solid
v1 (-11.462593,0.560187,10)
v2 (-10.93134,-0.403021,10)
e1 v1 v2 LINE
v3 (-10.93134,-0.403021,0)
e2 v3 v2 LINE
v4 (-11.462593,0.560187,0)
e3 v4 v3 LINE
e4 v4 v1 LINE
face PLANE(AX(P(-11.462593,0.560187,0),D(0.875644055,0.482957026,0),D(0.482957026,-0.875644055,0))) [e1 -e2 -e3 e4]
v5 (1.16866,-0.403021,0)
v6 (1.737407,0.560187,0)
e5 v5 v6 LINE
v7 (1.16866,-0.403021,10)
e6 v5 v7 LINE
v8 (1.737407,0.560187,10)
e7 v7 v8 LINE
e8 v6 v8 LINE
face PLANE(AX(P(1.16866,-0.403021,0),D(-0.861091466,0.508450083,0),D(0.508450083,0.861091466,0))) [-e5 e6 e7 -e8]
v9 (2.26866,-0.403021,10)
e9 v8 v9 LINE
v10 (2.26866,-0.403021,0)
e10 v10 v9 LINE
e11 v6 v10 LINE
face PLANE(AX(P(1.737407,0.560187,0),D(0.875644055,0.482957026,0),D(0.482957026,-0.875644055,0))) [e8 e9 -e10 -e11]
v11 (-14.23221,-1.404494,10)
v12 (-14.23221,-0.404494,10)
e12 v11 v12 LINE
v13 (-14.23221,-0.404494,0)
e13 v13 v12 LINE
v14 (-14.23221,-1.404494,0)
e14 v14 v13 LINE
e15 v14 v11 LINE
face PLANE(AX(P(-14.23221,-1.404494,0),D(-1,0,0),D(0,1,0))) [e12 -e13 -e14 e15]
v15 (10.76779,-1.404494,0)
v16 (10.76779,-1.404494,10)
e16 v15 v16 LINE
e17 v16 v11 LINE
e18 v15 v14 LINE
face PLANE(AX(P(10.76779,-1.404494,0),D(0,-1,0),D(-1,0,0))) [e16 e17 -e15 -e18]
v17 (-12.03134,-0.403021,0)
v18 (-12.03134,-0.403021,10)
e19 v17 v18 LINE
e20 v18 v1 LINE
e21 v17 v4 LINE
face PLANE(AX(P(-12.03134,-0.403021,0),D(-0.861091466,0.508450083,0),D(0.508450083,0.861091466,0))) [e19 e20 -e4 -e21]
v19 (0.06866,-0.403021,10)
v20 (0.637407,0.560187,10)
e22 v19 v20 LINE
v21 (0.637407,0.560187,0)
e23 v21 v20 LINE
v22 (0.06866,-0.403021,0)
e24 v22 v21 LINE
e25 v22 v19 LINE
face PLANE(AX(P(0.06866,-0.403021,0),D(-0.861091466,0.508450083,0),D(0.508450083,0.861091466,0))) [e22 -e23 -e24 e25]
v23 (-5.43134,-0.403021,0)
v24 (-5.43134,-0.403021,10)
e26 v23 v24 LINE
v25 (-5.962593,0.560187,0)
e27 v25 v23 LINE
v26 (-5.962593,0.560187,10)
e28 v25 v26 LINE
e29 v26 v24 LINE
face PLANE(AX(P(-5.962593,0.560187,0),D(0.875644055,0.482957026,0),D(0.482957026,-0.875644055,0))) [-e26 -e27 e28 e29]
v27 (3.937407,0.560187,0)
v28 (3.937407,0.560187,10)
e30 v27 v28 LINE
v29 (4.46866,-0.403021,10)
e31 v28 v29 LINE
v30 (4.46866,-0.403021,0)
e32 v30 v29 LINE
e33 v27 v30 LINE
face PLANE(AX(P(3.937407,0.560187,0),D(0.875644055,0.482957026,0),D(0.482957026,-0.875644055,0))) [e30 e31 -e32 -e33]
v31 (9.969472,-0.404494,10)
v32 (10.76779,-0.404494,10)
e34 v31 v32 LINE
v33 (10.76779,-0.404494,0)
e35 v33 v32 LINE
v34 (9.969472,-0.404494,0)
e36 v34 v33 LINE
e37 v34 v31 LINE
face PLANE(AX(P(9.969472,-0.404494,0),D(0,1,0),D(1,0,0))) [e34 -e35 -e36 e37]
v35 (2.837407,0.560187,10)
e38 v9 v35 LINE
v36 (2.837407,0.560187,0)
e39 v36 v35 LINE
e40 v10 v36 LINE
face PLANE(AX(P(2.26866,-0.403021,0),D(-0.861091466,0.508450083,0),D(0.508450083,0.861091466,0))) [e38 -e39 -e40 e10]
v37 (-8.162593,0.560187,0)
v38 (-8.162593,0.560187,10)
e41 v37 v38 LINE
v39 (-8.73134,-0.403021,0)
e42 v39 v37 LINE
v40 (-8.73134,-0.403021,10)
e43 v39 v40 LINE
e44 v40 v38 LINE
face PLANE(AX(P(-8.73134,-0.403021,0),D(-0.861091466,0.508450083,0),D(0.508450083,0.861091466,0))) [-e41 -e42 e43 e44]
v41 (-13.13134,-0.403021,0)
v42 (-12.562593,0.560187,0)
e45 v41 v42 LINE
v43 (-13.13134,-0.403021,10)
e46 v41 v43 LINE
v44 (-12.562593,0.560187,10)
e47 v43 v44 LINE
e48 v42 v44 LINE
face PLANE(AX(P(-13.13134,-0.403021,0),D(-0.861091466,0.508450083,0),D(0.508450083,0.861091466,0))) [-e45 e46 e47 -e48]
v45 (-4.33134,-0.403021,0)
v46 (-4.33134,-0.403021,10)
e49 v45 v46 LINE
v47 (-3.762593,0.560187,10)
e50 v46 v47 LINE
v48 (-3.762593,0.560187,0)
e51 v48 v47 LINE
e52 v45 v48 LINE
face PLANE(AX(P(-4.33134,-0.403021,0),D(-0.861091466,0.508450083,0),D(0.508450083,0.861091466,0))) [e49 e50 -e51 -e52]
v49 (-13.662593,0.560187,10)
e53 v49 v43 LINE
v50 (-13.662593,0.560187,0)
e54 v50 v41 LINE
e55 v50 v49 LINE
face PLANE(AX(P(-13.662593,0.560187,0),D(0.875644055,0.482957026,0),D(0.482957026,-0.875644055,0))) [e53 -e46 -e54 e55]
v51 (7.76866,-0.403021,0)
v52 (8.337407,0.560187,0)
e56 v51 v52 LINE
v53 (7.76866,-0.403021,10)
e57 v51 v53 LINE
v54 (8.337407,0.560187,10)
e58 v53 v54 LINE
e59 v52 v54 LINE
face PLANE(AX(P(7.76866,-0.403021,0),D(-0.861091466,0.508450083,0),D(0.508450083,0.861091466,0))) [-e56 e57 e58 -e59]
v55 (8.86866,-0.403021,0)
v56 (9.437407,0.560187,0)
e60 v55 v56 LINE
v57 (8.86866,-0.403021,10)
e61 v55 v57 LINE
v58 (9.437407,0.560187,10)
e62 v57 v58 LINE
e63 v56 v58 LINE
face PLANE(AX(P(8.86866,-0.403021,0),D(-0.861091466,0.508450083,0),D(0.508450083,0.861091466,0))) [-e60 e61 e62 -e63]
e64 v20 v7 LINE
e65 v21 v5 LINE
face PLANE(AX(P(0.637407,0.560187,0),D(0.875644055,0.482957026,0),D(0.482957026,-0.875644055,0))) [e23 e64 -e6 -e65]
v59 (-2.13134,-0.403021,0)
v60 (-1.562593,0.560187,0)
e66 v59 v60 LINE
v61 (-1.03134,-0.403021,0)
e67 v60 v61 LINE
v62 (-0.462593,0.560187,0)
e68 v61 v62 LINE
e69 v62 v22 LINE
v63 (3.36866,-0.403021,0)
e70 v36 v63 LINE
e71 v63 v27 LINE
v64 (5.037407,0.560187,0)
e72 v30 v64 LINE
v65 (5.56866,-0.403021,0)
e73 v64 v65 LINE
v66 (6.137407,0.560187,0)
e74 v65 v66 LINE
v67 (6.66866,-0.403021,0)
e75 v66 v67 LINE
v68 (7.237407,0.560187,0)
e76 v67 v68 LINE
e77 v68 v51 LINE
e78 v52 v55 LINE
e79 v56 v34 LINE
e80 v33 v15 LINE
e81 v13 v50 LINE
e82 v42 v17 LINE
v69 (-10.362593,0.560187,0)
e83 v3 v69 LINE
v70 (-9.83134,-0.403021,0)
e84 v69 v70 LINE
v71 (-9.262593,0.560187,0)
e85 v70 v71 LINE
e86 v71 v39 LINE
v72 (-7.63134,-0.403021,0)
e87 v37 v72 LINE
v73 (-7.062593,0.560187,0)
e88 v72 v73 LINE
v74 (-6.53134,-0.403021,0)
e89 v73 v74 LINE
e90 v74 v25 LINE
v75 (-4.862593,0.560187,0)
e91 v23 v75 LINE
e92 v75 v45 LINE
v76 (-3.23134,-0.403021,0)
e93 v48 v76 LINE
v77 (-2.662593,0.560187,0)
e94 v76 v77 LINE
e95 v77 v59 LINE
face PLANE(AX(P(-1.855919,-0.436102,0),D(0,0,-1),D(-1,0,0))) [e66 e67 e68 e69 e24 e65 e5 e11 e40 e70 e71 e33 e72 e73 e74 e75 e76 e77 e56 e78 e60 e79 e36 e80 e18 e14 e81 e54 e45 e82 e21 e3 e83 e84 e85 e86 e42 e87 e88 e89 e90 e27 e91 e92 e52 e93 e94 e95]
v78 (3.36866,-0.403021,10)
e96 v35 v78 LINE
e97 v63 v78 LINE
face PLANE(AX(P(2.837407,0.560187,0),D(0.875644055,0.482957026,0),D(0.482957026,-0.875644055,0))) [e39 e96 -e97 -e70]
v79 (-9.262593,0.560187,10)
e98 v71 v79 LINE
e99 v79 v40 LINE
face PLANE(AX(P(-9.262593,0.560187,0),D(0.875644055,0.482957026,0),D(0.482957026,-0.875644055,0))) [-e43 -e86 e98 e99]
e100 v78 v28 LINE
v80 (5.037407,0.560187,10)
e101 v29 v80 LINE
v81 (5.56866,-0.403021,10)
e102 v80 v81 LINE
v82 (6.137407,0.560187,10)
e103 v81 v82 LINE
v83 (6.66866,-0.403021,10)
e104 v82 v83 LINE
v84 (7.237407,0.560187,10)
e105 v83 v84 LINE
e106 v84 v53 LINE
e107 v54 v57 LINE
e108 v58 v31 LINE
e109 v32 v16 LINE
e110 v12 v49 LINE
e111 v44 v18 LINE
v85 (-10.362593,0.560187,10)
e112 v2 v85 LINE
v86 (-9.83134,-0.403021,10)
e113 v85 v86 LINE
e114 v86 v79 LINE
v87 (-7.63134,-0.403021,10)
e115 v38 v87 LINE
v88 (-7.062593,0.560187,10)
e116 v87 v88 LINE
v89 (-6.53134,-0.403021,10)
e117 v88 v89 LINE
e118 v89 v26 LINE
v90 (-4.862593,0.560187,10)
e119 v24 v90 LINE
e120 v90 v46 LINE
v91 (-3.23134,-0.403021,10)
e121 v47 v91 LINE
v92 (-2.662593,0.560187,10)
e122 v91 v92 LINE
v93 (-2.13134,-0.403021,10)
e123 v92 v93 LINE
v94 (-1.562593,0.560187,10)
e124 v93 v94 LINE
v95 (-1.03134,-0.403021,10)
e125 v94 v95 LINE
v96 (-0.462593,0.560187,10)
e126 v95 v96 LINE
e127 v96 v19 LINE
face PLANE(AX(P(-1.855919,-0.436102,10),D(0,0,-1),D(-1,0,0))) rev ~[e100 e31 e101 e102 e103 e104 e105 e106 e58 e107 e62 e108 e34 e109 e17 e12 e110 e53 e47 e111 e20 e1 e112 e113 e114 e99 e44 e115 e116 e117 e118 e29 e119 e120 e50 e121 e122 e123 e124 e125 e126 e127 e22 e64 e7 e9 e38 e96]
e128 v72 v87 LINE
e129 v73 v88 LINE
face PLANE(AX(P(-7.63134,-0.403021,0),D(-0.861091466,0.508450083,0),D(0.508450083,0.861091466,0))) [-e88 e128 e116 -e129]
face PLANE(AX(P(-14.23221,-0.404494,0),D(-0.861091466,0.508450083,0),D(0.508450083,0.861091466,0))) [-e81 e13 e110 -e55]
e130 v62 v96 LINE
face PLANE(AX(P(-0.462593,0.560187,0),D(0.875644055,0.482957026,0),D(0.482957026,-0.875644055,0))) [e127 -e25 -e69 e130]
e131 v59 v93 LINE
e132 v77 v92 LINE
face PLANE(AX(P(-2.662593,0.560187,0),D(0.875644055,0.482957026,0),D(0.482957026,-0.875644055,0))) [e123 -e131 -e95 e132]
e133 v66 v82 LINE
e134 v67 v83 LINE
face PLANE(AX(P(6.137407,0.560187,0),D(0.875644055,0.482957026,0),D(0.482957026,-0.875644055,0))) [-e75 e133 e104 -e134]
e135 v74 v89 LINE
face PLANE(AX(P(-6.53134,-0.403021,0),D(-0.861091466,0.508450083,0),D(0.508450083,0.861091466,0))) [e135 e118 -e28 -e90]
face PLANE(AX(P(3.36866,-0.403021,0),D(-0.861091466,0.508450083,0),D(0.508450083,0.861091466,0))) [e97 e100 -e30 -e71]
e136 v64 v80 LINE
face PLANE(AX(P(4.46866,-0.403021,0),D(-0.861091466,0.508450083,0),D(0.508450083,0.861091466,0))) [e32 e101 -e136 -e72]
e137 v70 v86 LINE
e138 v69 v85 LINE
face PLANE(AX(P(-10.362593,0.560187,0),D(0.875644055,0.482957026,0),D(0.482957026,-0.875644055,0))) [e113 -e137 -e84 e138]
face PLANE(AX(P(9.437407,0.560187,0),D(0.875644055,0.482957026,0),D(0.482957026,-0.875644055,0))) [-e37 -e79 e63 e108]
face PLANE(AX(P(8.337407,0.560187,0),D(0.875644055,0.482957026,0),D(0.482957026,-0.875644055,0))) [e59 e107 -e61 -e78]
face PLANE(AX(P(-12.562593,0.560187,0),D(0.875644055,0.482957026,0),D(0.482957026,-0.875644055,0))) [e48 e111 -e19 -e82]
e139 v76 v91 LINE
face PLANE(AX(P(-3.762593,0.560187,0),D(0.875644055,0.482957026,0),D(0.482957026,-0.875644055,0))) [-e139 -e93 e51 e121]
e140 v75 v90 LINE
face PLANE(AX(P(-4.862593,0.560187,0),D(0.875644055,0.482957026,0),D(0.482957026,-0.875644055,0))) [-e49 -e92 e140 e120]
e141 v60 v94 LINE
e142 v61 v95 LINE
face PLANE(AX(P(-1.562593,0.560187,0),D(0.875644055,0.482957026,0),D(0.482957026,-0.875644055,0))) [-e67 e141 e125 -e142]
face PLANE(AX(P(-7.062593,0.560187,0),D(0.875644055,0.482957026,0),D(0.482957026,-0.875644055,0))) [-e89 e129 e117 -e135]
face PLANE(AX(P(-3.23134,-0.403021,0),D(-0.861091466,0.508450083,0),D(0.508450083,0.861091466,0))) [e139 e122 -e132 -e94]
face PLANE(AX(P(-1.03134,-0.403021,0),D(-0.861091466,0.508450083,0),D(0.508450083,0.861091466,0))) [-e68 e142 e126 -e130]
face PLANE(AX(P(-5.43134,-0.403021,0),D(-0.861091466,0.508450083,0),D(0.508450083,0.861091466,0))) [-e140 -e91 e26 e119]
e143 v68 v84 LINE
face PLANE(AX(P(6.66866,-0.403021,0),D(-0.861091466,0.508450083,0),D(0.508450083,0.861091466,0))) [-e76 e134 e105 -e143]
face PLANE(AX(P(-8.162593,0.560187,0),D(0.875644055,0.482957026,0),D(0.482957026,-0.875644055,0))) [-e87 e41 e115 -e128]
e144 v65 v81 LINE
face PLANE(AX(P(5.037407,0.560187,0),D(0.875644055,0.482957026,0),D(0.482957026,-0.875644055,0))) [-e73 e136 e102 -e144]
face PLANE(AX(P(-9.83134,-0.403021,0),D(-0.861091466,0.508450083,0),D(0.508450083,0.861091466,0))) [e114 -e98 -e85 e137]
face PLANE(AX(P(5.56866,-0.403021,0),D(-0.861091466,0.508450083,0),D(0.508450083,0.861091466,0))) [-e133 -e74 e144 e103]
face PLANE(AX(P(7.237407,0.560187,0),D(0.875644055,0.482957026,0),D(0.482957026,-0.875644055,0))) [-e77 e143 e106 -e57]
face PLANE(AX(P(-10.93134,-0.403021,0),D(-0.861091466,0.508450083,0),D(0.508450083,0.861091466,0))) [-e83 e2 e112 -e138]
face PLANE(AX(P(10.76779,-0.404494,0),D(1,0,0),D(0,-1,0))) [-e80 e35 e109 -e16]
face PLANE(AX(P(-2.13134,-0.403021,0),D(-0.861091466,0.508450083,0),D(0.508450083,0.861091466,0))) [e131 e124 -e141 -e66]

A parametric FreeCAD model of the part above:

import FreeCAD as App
import Part
import Sketcher

V = App.Vector

doc = App.newDocument("Part")
body = doc.addObject("PartDesign::Body", "Body")

# Sketch on XY plane
sketch1 = doc.addObject("Sketcher::SketchObject", "Sketch")
body.addObject(sketch1)
sketch1.AttachmentSupport = (doc.XY_Plane, [""])
sketch1.MapMode = "FlatFace"
sketch1.addGeometry([
    Part.LineSegment(V(-13.662593, 0.560187, 0), V(-14.23221, -0.404494, 0)),  # 0
    Part.LineSegment(V(-14.23221, -0.404494, 0), V(-14.23221, -1.404494, 0)),  # 1
    Part.LineSegment(V(-14.23221, -1.404494, 0), V(10.76779, -1.404494, 0)),  # 2
    Part.LineSegment(V(10.76779, -1.404494, 0), V(10.76779, -0.404494, 0)),  # 3
    Part.LineSegment(V(10.76779, -0.404494, 0), V(9.969472, -0.404494, 0)),  # 4
    Part.LineSegment(V(9.969472, -0.404494, 0), V(9.437407, 0.560187, 0)),  # 5
    Part.LineSegment(V(9.437407, 0.560187, 0), V(8.86866, -0.403021, 0)),  # 6
    Part.LineSegment(V(8.86866, -0.403021, 0), V(8.337407, 0.560187, 0)),  # 7
    Part.LineSegment(V(8.337407, 0.560187, 0), V(7.76866, -0.403021, 0)),  # 8
    Part.LineSegment(V(7.76866, -0.403021, 0), V(7.237407, 0.560187, 0)),  # 9
    Part.LineSegment(V(7.237407, 0.560187, 0), V(6.66866, -0.403021, 0)),  # 10
    Part.LineSegment(V(6.66866, -0.403021, 0), V(6.137407, 0.560187, 0)),  # 11
    Part.LineSegment(V(6.137407, 0.560187, 0), V(5.56866, -0.403021, 0)),  # 12
    Part.LineSegment(V(5.56866, -0.403021, 0), V(5.037407, 0.560187, 0)),  # 13
    Part.LineSegment(V(5.037407, 0.560187, 0), V(4.46866, -0.403021, 0)),  # 14
    Part.LineSegment(V(4.46866, -0.403021, 0), V(3.937407, 0.560187, 0)),  # 15
    Part.LineSegment(V(3.937407, 0.560187, 0), V(3.36866, -0.403021, 0)),  # 16
    Part.LineSegment(V(3.36866, -0.403021, 0), V(2.837407, 0.560187, 0)),  # 17
    Part.LineSegment(V(2.837407, 0.560187, 0), V(2.26866, -0.403021, 0)),  # 18
    Part.LineSegment(V(2.26866, -0.403021, 0), V(1.737407, 0.560187, 0)),  # 19
    Part.LineSegment(V(1.737407, 0.560187, 0), V(1.16866, -0.403021, 0)),  # 20
    Part.LineSegment(V(1.16866, -0.403021, 0), V(0.637407, 0.560187, 0)),  # 21
    Part.LineSegment(V(0.637407, 0.560187, 0), V(0.06866, -0.403021, 0)),  # 22
    Part.LineSegment(V(0.06866, -0.403021, 0), V(-0.462593, 0.560187, 0)),  # 23
    Part.LineSegment(V(-0.462593, 0.560187, 0), V(-1.03134, -0.403021, 0)),  # 24
    Part.LineSegment(V(-1.03134, -0.403021, 0), V(-1.562593, 0.560187, 0)),  # 25
    Part.LineSegment(V(-1.562593, 0.560187, 0), V(-2.13134, -0.403021, 0)),  # 26
    Part.LineSegment(V(-2.13134, -0.403021, 0), V(-2.662593, 0.560187, 0)),  # 27
    Part.LineSegment(V(-2.662593, 0.560187, 0), V(-3.23134, -0.403021, 0)),  # 28
    Part.LineSegment(V(-3.23134, -0.403021, 0), V(-3.762593, 0.560187, 0)),  # 29
    Part.LineSegment(V(-3.762593, 0.560187, 0), V(-4.33134, -0.403021, 0)),  # 30
    Part.LineSegment(V(-4.33134, -0.403021, 0), V(-4.862593, 0.560187, 0)),  # 31
    Part.LineSegment(V(-4.862593, 0.560187, 0), V(-5.43134, -0.403021, 0)),  # 32
    Part.LineSegment(V(-5.43134, -0.403021, 0), V(-5.962593, 0.560187, 0)),  # 33
    Part.LineSegment(V(-5.962593, 0.560187, 0), V(-6.53134, -0.403021, 0)),  # 34
    Part.LineSegment(V(-6.53134, -0.403021, 0), V(-7.062593, 0.560187, 0)),  # 35
    Part.LineSegment(V(-7.062593, 0.560187, 0), V(-7.63134, -0.403021, 0)),  # 36
    Part.LineSegment(V(-7.63134, -0.403021, 0), V(-8.162593, 0.560187, 0)),  # 37
    Part.LineSegment(V(-8.162593, 0.560187, 0), V(-8.73134, -0.403021, 0)),  # 38
    Part.LineSegment(V(-8.73134, -0.403021, 0), V(-9.262593, 0.560187, 0)),  # 39
    Part.LineSegment(V(-9.262593, 0.560187, 0), V(-9.83134, -0.403021, 0)),  # 40
    Part.LineSegment(V(-9.83134, -0.403021, 0), V(-10.362593, 0.560187, 0)),  # 41
    Part.LineSegment(V(-10.362593, 0.560187, 0), V(-10.93134, -0.403021, 0)),  # 42
    Part.LineSegment(V(-10.93134, -0.403021, 0), V(-11.462593, 0.560187, 0)),  # 43
    Part.LineSegment(V(-11.462593, 0.560187, 0), V(-12.03134, -0.403021, 0)),  # 44
    Part.LineSegment(V(-12.03134, -0.403021, 0), V(-12.562593, 0.560187, 0)),  # 45
    Part.LineSegment(V(-12.562593, 0.560187, 0), V(-13.13134, -0.403021, 0)),  # 46
    Part.LineSegment(V(-13.13134, -0.403021, 0), V(-13.662593, 0.560187, 0)),  # 47
], False)
sketch1.addConstraint([
    Sketcher.Constraint("Coincident", 0, 2, 1, 1),
    Sketcher.Constraint("Coincident", 1, 2, 2, 1),
    Sketcher.Constraint("Coincident", 2, 2, 3, 1),
    Sketcher.Constraint("Coincident", 3, 2, 4, 1),
    Sketcher.Constraint("Coincident", 4, 2, 5, 1),
    Sketcher.Constraint("Coincident", 5, 2, 6, 1),
    Sketcher.Constraint("Coincident", 6, 2, 7, 1),
    Sketcher.Constraint("Coincident", 7, 2, 8, 1),
    Sketcher.Constraint("Coincident", 8, 2, 9, 1),
    Sketcher.Constraint("Coincident", 9, 2, 10, 1),
    Sketcher.Constraint("Coincident", 10, 2, 11, 1),
    Sketcher.Constraint("Coincident", 11, 2, 12, 1),
    Sketcher.Constraint("Coincident", 12, 2, 13, 1),
    Sketcher.Constraint("Coincident", 13, 2, 14, 1),
    Sketcher.Constraint("Coincident", 14, 2, 15, 1),
    Sketcher.Constraint("Coincident", 15, 2, 16, 1),
    Sketcher.Constraint("Coincident", 16, 2, 17, 1),
    Sketcher.Constraint("Coincident", 17, 2, 18, 1),
    Sketcher.Constraint("Coincident", 18, 2, 19, 1),
    Sketcher.Constraint("Coincident", 19, 2, 20, 1),
    Sketcher.Constraint("Coincident", 20, 2, 21, 1),
    Sketcher.Constraint("Coincident", 21, 2, 22, 1),
    Sketcher.Constraint("Coincident", 22, 2, 23, 1),
    Sketcher.Constraint("Coincident", 23, 2, 24, 1),
    Sketcher.Constraint("Coincident", 24, 2, 25, 1),
    Sketcher.Constraint("Coincident", 25, 2, 26, 1),
    Sketcher.Constraint("Coincident", 26, 2, 27, 1),
    Sketcher.Constraint("Coincident", 27, 2, 28, 1),
    Sketcher.Constraint("Coincident", 28, 2, 29, 1),
    Sketcher.Constraint("Coincident", 29, 2, 30, 1),
    Sketcher.Constraint("Coincident", 30, 2, 31, 1),
    Sketcher.Constraint("Coincident", 31, 2, 32, 1),
    Sketcher.Constraint("Coincident", 32, 2, 33, 1),
    Sketcher.Constraint("Coincident", 33, 2, 34, 1),
    Sketcher.Constraint("Coincident", 34, 2, 35, 1),
    Sketcher.Constraint("Coincident", 35, 2, 36, 1),
    Sketcher.Constraint("Coincident", 36, 2, 37, 1),
    Sketcher.Constraint("Coincident", 37, 2, 38, 1),
    Sketcher.Constraint("Coincident", 38, 2, 39, 1),
    Sketcher.Constraint("Coincident", 39, 2, 40, 1),
    Sketcher.Constraint("Coincident", 40, 2, 41, 1),
    Sketcher.Constraint("Coincident", 41, 2, 42, 1),
    Sketcher.Constraint("Coincident", 42, 2, 43, 1),
    Sketcher.Constraint("Coincident", 43, 2, 44, 1),
    Sketcher.Constraint("Coincident", 44, 2, 45, 1),
    Sketcher.Constraint("Coincident", 45, 2, 46, 1),
    Sketcher.Constraint("Coincident", 46, 2, 47, 1),
    Sketcher.Constraint("Coincident", 47, 2, 0, 1),
    Sketcher.Constraint("Vertical", 1),
    Sketcher.Constraint("Horizontal", 2),
    Sketcher.Constraint("Vertical", 3),
    Sketcher.Constraint("Horizontal", 4),
    Sketcher.Constraint("Parallel", 0, 6),
    Sketcher.Constraint("Parallel", 5, 7),
    Sketcher.Constraint("Parallel", 6, 8),
    Sketcher.Constraint("Parallel", 7, 9),
    Sketcher.Constraint("Parallel", 8, 10),
    Sketcher.Constraint("Parallel", 9, 11),
    Sketcher.Constraint("Parallel", 10, 12),
    Sketcher.Constraint("Parallel", 11, 13),
    Sketcher.Constraint("Parallel", 12, 14),
    Sketcher.Constraint("Parallel", 13, 15),
    Sketcher.Constraint("Parallel", 14, 16),
    Sketcher.Constraint("Parallel", 15, 17),
    Sketcher.Constraint("Parallel", 16, 18),
    Sketcher.Constraint("Parallel", 17, 19),
    Sketcher.Constraint("Parallel", 18, 20),
    Sketcher.Constraint("Parallel", 19, 21),
    Sketcher.Constraint("Parallel", 20, 22),
    Sketcher.Constraint("Parallel", 21, 23),
    Sketcher.Constraint("Parallel", 22, 24),
    Sketcher.Constraint("Parallel", 23, 25),
    Sketcher.Constraint("Parallel", 24, 26),
    Sketcher.Constraint("Parallel", 25, 27),
    Sketcher.Constraint("Parallel", 26, 28),
    Sketcher.Constraint("Parallel", 27, 29),
    Sketcher.Constraint("Parallel", 28, 30),
    Sketcher.Constraint("Parallel", 29, 31),
    Sketcher.Constraint("Parallel", 30, 32),
    Sketcher.Constraint("Parallel", 31, 33),
    Sketcher.Constraint("Parallel", 32, 34),
    Sketcher.Constraint("Parallel", 33, 35),
    Sketcher.Constraint("Parallel", 34, 36),
    Sketcher.Constraint("Parallel", 35, 37),
    Sketcher.Constraint("Parallel", 36, 38),
    Sketcher.Constraint("Parallel", 37, 39),
    Sketcher.Constraint("Parallel", 38, 40),
    Sketcher.Constraint("Parallel", 39, 41),
    Sketcher.Constraint("Parallel", 40, 42),
    Sketcher.Constraint("Parallel", 41, 43),
    Sketcher.Constraint("Parallel", 42, 44),
    Sketcher.Constraint("Parallel", 43, 45),
    Sketcher.Constraint("Parallel", 44, 46),
    Sketcher.Constraint("Parallel", 45, 47),
    Sketcher.Constraint("Horizontal", 0, 2, 3, 2),
    Sketcher.Constraint("Horizontal", 5, 2, 7, 2),
    Sketcher.Constraint("Horizontal", 6, 2, 8, 2),
    Sketcher.Constraint("Horizontal", 7, 2, 9, 2),
    Sketcher.Constraint("Horizontal", 8, 2, 10, 2),
    Sketcher.Constraint("Horizontal", 9, 2, 11, 2),
    Sketcher.Constraint("Horizontal", 10, 2, 12, 2),
    Sketcher.Constraint("Horizontal", 11, 2, 13, 2),
    Sketcher.Constraint("Horizontal", 12, 2, 14, 2),
    Sketcher.Constraint("Horizontal", 13, 2, 15, 2),
    Sketcher.Constraint("Horizontal", 14, 2, 16, 2),
    Sketcher.Constraint("Horizontal", 15, 2, 17, 2),
    Sketcher.Constraint("Horizontal", 16, 2, 18, 2),
    Sketcher.Constraint("Horizontal", 17, 2, 19, 2),
    Sketcher.Constraint("Horizontal", 18, 2, 20, 2),
    Sketcher.Constraint("Horizontal", 19, 2, 21, 2),
    Sketcher.Constraint("Horizontal", 20, 2, 22, 2),
    Sketcher.Constraint("Horizontal", 21, 2, 23, 2),
    Sketcher.Constraint("Horizontal", 22, 2, 24, 2),
    Sketcher.Constraint("Horizontal", 23, 2, 25, 2),
    Sketcher.Constraint("Horizontal", 24, 2, 26, 2),
    Sketcher.Constraint("Horizontal", 25, 2, 27, 2),
    Sketcher.Constraint("Horizontal", 26, 2, 28, 2),
    Sketcher.Constraint("Horizontal", 27, 2, 29, 2),
    Sketcher.Constraint("Horizontal", 28, 2, 30, 2),
    Sketcher.Constraint("Horizontal", 29, 2, 31, 2),
    Sketcher.Constraint("Horizontal", 30, 2, 32, 2),
    Sketcher.Constraint("Horizontal", 31, 2, 33, 2),
    Sketcher.Constraint("Horizontal", 32, 2, 34, 2),
    Sketcher.Constraint("Horizontal", 33, 2, 35, 2),
    Sketcher.Constraint("Horizontal", 34, 2, 36, 2),
    Sketcher.Constraint("Horizontal", 35, 2, 37, 2),
    Sketcher.Constraint("Horizontal", 36, 2, 38, 2),
    Sketcher.Constraint("Horizontal", 37, 2, 39, 2),
    Sketcher.Constraint("Horizontal", 38, 2, 40, 2),
    Sketcher.Constraint("Horizontal", 39, 2, 41, 2),
    Sketcher.Constraint("Horizontal", 40, 2, 42, 2),
    Sketcher.Constraint("Horizontal", 41, 2, 43, 2),
    Sketcher.Constraint("Horizontal", 42, 2, 44, 2),
    Sketcher.Constraint("Horizontal", 43, 2, 45, 2),
    Sketcher.Constraint("Horizontal", 44, 2, 46, 2),
    Sketcher.Constraint("Horizontal", 45, 2, 47, 2),
    Sketcher.Constraint("DistanceX", 2, 1, 2, 2, 25.0),
    Sketcher.Constraint("DistanceY", 1, 2, 1, 1, 1.0),
    Sketcher.Constraint("Distance", 7, 1.1),
    Sketcher.Constraint("DistanceX", 7, 2, 5, 2, 1.1),
    Sketcher.Constraint("Distance", 0, 1.120301),
    Sketcher.Constraint("Distance", 6, 1.11859),
    Sketcher.Constraint("DistanceX", 0, 2, -1, 1, 14.23221),
    Sketcher.Constraint("DistanceY", 6, 2, -1, 1, 0.403021),
])
pad1 = doc.addObject("PartDesign::Pad", "Pad")
body.addObject(pad1)
pad1.Profile = sketch1
pad1.Length = 10

doc.recompute()
